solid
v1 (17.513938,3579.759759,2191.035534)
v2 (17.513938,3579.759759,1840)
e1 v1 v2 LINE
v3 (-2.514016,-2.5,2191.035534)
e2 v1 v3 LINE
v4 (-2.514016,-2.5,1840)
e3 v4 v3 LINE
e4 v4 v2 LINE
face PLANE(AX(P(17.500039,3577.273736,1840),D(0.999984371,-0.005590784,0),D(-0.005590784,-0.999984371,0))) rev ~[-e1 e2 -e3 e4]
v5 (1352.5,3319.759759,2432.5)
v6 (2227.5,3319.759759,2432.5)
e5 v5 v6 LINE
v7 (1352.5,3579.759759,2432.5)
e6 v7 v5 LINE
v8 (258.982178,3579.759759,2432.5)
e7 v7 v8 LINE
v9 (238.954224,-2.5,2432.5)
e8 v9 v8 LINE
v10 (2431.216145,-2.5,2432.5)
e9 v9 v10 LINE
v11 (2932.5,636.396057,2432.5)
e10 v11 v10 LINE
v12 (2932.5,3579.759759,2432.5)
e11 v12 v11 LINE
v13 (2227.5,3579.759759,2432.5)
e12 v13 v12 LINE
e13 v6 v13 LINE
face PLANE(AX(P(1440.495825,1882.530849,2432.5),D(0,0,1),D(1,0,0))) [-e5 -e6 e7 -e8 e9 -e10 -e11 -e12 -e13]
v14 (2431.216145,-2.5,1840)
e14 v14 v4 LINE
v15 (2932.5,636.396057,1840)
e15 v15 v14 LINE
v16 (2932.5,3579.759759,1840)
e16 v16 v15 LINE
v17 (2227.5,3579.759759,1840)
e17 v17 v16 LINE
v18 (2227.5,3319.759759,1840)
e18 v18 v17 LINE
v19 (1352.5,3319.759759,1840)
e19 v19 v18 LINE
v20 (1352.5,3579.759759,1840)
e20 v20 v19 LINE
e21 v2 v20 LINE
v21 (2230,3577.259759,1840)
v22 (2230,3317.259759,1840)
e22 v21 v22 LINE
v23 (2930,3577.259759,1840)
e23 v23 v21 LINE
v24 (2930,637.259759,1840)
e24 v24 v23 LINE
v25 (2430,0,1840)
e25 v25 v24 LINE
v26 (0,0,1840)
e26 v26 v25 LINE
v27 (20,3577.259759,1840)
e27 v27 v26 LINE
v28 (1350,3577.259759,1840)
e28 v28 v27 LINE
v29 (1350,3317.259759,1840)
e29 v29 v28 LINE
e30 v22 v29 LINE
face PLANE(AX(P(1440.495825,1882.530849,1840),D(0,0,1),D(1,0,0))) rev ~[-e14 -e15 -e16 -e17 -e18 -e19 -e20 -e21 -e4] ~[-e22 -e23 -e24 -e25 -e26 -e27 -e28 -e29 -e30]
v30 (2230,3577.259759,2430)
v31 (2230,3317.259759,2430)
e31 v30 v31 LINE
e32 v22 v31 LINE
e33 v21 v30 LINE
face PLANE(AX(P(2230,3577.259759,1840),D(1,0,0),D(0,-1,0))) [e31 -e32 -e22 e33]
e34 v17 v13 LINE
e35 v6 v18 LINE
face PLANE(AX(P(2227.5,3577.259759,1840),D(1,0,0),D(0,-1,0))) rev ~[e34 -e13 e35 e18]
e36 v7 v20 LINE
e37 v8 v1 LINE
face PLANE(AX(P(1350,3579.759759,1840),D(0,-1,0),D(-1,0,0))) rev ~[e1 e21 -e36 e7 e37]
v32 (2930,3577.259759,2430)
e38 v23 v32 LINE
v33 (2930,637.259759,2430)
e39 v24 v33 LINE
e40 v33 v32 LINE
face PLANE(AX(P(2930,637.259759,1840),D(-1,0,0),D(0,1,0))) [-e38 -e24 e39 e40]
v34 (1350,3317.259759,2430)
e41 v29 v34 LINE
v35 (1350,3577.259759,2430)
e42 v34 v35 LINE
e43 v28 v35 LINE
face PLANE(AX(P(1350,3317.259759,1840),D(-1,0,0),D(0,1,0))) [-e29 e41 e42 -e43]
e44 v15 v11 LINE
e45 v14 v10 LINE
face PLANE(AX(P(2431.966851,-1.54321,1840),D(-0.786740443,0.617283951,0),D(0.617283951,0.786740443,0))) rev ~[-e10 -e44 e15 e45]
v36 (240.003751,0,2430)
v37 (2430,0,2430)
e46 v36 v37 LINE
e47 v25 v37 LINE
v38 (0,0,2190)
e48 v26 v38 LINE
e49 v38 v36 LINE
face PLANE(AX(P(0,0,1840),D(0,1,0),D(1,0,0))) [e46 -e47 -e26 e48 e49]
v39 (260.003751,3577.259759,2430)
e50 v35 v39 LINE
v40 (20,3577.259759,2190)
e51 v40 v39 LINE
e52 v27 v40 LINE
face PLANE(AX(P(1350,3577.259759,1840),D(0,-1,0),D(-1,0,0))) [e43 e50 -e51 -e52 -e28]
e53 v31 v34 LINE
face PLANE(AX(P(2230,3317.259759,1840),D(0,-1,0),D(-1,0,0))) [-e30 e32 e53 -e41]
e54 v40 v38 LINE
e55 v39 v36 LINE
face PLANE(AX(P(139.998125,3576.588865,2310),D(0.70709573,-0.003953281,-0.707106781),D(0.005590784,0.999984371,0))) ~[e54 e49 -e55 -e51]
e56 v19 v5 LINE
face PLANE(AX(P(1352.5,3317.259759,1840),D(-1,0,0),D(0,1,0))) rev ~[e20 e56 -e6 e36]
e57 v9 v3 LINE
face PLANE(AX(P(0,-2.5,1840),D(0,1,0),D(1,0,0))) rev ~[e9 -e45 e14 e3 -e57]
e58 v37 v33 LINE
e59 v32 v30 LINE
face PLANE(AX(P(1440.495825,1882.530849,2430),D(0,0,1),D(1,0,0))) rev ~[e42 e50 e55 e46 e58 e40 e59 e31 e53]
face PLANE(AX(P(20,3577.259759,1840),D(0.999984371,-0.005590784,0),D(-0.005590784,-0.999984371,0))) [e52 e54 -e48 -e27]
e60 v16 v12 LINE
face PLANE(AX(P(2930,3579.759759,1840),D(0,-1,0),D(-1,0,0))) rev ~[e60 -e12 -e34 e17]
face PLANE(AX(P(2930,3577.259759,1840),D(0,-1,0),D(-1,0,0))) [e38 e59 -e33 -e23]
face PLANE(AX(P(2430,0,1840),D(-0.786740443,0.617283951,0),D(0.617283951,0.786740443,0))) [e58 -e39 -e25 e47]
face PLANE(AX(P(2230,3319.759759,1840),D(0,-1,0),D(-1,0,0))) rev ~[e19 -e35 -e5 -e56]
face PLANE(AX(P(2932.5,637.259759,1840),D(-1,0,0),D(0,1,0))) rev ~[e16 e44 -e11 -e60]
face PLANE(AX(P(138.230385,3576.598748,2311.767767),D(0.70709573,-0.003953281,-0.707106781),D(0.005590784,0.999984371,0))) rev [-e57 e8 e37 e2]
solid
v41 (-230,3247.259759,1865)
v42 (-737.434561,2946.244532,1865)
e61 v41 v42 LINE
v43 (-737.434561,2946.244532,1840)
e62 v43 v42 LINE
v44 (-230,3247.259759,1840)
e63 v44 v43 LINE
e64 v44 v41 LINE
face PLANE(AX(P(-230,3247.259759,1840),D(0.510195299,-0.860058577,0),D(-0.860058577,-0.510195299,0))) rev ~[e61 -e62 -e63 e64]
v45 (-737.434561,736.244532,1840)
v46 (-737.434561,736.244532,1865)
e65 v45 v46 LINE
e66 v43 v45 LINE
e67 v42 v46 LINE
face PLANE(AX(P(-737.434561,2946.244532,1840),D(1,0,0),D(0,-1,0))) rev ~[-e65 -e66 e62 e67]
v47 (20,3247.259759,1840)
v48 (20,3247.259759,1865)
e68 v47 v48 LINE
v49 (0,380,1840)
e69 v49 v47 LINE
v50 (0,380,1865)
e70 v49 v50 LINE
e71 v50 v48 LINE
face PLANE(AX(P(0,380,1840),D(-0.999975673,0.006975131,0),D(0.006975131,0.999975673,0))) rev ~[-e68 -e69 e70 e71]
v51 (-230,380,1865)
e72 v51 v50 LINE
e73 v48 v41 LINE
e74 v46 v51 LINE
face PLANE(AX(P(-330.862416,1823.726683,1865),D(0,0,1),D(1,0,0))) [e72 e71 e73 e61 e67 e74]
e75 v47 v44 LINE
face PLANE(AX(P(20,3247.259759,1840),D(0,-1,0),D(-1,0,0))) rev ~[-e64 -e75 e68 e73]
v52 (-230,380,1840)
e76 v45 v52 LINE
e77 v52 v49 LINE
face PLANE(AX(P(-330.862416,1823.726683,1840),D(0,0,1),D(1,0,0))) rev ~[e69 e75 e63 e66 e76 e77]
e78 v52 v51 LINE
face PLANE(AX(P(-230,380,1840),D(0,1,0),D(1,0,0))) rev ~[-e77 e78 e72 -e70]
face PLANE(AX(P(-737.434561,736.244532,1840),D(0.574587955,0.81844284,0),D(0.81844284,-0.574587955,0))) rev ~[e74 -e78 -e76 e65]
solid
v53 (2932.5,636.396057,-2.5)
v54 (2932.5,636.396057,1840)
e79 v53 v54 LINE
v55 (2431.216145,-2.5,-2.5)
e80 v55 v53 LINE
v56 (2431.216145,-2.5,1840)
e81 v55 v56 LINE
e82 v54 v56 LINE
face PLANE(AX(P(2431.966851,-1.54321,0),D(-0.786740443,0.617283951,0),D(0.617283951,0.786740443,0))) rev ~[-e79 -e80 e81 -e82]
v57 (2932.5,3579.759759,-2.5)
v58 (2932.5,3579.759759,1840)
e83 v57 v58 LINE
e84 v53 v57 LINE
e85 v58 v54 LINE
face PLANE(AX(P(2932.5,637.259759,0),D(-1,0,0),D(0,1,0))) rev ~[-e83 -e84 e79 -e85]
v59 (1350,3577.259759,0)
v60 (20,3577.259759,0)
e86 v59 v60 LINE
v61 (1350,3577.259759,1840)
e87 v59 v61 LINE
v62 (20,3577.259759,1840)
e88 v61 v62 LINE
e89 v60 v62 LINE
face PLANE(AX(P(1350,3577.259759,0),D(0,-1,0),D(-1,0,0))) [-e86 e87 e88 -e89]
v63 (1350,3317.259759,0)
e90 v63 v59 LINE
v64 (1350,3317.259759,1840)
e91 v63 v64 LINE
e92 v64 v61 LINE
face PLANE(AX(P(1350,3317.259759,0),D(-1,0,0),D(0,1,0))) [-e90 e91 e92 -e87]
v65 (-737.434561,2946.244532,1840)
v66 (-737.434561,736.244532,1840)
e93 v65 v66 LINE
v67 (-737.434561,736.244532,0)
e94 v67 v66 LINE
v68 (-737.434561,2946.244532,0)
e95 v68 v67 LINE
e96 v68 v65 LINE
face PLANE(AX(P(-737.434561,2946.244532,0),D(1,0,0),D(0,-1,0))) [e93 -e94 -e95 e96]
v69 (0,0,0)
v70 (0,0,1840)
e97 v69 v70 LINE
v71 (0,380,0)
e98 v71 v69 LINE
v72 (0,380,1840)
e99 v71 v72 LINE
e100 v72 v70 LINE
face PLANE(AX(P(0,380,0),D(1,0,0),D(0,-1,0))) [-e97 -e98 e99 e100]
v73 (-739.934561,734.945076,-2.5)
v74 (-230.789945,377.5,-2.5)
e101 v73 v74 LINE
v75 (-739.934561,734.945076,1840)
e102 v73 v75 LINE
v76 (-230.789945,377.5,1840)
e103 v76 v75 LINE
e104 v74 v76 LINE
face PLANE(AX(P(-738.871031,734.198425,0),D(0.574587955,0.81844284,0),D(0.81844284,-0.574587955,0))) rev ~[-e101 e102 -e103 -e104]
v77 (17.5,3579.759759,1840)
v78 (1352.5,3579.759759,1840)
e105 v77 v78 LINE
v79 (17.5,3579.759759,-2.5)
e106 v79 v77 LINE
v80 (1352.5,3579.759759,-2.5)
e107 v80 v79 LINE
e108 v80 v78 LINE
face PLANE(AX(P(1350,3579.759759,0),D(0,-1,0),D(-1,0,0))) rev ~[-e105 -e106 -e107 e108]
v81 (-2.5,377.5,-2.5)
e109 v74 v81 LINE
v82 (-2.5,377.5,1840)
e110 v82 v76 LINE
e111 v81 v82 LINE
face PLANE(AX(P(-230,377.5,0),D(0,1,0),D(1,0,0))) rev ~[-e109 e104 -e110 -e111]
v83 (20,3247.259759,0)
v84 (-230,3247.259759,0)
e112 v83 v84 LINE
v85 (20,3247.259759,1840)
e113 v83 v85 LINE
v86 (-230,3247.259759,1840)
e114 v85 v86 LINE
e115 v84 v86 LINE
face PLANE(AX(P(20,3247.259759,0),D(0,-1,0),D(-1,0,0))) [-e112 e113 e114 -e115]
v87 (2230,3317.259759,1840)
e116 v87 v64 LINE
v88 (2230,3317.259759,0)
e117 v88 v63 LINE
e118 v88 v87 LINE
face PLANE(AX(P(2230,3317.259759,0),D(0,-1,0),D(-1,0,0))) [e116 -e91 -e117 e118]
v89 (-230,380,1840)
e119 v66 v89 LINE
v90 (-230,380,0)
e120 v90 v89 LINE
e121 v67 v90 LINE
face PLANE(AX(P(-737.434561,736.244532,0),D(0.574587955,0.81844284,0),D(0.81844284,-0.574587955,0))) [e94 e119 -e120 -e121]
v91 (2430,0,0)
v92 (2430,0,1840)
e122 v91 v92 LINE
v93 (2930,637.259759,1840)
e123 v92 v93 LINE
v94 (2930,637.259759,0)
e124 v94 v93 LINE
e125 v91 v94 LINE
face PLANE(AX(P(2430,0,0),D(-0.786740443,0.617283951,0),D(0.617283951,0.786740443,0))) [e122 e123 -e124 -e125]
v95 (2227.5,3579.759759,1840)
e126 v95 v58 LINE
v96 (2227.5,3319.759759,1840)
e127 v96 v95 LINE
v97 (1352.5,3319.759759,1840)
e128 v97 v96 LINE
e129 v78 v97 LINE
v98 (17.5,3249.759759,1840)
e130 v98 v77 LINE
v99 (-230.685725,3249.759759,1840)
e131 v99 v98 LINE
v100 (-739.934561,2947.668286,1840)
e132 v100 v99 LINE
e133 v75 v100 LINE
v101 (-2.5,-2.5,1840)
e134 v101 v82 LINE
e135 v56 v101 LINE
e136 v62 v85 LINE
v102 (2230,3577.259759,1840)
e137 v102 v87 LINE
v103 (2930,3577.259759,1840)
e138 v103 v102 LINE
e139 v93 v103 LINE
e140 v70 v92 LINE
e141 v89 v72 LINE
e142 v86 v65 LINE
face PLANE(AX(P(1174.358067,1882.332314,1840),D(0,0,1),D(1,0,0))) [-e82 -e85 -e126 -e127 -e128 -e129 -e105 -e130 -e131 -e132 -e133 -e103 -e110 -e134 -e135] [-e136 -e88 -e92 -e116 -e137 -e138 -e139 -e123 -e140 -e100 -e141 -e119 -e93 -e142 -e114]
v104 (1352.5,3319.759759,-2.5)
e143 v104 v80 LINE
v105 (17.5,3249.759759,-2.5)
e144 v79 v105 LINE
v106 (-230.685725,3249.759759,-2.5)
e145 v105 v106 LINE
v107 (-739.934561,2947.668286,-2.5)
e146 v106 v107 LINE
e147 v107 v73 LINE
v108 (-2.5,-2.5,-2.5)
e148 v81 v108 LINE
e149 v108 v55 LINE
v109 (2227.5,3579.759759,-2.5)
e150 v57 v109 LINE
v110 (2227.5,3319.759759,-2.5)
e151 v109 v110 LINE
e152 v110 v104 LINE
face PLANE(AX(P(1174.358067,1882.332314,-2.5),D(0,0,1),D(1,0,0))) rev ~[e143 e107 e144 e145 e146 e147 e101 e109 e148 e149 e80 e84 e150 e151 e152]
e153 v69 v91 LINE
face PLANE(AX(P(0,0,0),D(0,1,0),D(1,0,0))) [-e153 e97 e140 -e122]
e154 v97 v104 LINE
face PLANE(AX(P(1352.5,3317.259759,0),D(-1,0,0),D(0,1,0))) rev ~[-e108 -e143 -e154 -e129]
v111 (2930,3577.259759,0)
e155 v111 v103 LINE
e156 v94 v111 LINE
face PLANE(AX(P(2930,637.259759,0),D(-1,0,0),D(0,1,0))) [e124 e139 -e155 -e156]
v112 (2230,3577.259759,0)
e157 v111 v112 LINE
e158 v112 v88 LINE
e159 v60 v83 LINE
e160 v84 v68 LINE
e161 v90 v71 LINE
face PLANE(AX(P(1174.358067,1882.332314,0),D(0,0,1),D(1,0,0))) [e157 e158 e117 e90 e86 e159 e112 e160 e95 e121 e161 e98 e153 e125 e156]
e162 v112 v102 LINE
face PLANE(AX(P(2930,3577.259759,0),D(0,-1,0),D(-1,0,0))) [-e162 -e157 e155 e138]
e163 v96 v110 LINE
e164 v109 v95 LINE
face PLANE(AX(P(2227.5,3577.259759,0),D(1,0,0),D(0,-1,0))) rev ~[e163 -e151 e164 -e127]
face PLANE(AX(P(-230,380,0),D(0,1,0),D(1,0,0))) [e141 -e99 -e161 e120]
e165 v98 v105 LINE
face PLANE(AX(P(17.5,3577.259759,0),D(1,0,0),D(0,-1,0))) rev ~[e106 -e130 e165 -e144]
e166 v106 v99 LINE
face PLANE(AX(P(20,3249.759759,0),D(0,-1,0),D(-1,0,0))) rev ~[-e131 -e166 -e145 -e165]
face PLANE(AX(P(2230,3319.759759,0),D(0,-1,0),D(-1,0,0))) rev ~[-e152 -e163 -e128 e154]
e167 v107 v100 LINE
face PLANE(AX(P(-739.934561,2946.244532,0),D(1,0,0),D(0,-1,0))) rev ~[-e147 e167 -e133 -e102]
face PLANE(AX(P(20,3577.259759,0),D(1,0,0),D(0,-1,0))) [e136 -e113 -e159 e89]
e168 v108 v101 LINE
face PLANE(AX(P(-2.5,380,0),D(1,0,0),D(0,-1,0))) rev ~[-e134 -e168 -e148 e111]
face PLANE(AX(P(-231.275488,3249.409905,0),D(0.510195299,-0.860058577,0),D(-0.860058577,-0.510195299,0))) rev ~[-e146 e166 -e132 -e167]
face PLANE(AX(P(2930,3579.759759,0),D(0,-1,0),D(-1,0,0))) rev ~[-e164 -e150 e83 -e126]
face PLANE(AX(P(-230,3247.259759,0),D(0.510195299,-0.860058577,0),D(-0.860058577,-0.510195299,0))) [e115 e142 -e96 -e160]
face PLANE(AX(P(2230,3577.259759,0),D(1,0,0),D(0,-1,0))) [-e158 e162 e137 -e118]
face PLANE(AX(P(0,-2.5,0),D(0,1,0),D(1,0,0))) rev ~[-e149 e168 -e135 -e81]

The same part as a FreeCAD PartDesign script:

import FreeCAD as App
import Part
import Sketcher

V = App.Vector
Q = App.Units.Quantity


def edges_at(feature, points):
    """Names of the edges that pass closest to the given points."""
    edges = feature.Shape.Edges
    near = lambda p: min(range(len(edges)), key=lambda i: edges[i].distToShape(Part.Vertex(*p))[0])
    return sorted({f"Edge{near(p) + 1}" for p in points})


def faces_at(feature, points):
    """Names of the faces that lie closest to the given points."""
    faces = feature.Shape.Faces
    near = lambda p: min(range(len(faces)), key=lambda i: faces[i].distToShape(Part.Vertex(*p))[0])
    return sorted({f"Face{near(p) + 1}" for p in points})


def add_polygon(sketch, points):
    """Adds a closed chain of lines whose ends are joined by coincident constraints."""
    first, n = sketch.GeometryCount, len(points)
    for a, b in zip(points, points[1:] + points[:1]):
        sketch.addGeometry(Part.LineSegment(App.Vector(*a, 0), App.Vector(*b, 0)), False)
    for i in range(n):
        sketch.addConstraint(Sketcher.Constraint("Coincident", first + i, 2, first + (i + 1) % n, 1))

doc = App.newDocument("Part")
body = doc.addObject("PartDesign::Body", "Body")

# Sketch on XY plane
sketch1 = body.newObject("Sketcher::SketchObject", "Sketch")
sketch1.AttachmentSupport = (doc.getObject("XY_Plane"), [""])
sketch1.MapMode = "FlatFace"
add_polygon(sketch1, [(0, 380), (0, 0), (2430, 0), (2930, 637), (2930, 3577), (2230, 3577), (2230, 3317), (1350, 3317), (1350, 3577), (20, 3577), (20, 3247), (-230, 3247), (-737, 2946), (-737, 736), (-230, 380)])  # lines 0-14
sketch1.addConstraint([
    Sketcher.Constraint("Vertical", 0),
    Sketcher.Constraint("Horizontal", 1),
    Sketcher.Constraint("Vertical", 3),
    Sketcher.Constraint("Horizontal", 4),
    Sketcher.Constraint("Vertical", 5),
    Sketcher.Constraint("Horizontal", 6),
    Sketcher.Constraint("Vertical", 7),
    Sketcher.Constraint("Horizontal", 8),
    Sketcher.Constraint("Vertical", 9),
    Sketcher.Constraint("Horizontal", 10),
    Sketcher.Constraint("Vertical", 12),
    Sketcher.Constraint("Horizontal", 14),
    Sketcher.Constraint("Coincident", 0, 2, -1, 1),
    Sketcher.Constraint("Horizontal", 4, 2, 7, 2),
    Sketcher.Constraint("Vertical", 10, 2, 13, 2),
    Sketcher.Constraint("DistanceX", 1, 1, 1, 2, Q("2430 mm")),
    Sketcher.Constraint("DistanceX", 4, 2, 4, 1, Q("700 mm")),
    Sketcher.Constraint("DistanceX", 6, 2, 6, 1, Q("880 mm")),
    Sketcher.Constraint("DistanceX", 8, 2, 8, 1, Q("1330 mm")),
    Sketcher.Constraint("DistanceX", 10, 2, 10, 1, Q("250 mm")),
    Sketcher.Constraint("DistanceX", 14, 1, 14, 2, Q("230 mm")),
    Sketcher.Constraint("DistanceY", 0, 2, 0, 1, Q("380 mm")),
    Sketcher.Constraint("DistanceY", 3, 1, 3, 2, Q("2940 mm")),
    Sketcher.Constraint("DistanceY", 5, 2, 5, 1, Q("260 mm")),
    Sketcher.Constraint("DistanceY", 9, 2, 9, 1, Q("330 mm")),
    Sketcher.Constraint("DistanceY", 12, 2, 12, 1, Q("2210 mm")),
    Sketcher.Constraint("Distance", 2, Q("810 mm")),
    Sketcher.Constraint("Distance", 11, Q("590 mm")),
    Sketcher.Constraint("Distance", 13, Q("620 mm")),
])
pad1 = body.newObject("PartDesign::Pad", "Pad")
pad1.Profile = sketch1
pad1.Length = 1840
doc.recompute()

thickness = body.newObject("PartDesign::Thickness", "Thickness")
thickness.Base = (pad1, faces_at(pad1, [(1096.283, 1788.63, 1840)]))
thickness.Value = 2.5
thickness.Reversed = False
thickness.Join = "Intersection"
body2 = doc.addObject("PartDesign::Body", "Body001")

# Sketch on XY plane
sketch2 = body2.newObject("Sketcher::SketchObject", "Sketch001")
sketch2.AttachmentSupport = (doc.getObject("XY_Plane001"), [""])
sketch2.MapMode = "FlatFace"
sketch2.AttachmentOffset = App.Placement(V(0, 0, 1840), App.Rotation())
add_polygon(sketch2, [(0, 380), (20, 3247), (-230, 3247), (-737, 2946), (-737, 736), (-230, 380)])  # lines 0-5
sketch2.addConstraint([
    Sketcher.Constraint("Horizontal", 1),
    Sketcher.Constraint("Vertical", 3),
    Sketcher.Constraint("Horizontal", 5),
    Sketcher.Constraint("PointOnObject", 5, 2, -2),
    Sketcher.Constraint("Vertical", 1, 2, 4, 2),
    Sketcher.Constraint("DistanceX", 1, 2, 1, 1, Q("250 mm")),
    Sketcher.Constraint("DistanceX", 5, 1, 5, 2, Q("230 mm")),
    Sketcher.Constraint("DistanceY", 3, 2, 3, 1, Q("2210 mm")),
    Sketcher.Constraint("Distance", 2, Q("590 mm")),
    Sketcher.Constraint("Distance", 4, Q("620 mm")),
    Sketcher.Constraint("DistanceY", -1, 1, 4, 2, Q("380 mm")),
    Sketcher.Constraint("Distance", 0, Q("2867.329511 mm")),
])
pad2 = body2.newObject("PartDesign::Pad", "Pad001")
pad2.Profile = sketch2
pad2.Length = 25
body3 = doc.addObject("PartDesign::Body", "Body002")

# Sketch on XY plane
sketch3 = body3.newObject("Sketcher::SketchObject", "Sketch002")
sketch3.AttachmentSupport = (doc.getObject("XY_Plane002"), [""])
sketch3.MapMode = "FlatFace"
sketch3.AttachmentOffset = App.Placement(V(0, 0, 1840), App.Rotation())
add_polygon(sketch3, [(20, 3577), (0, 0), (2430, 0), (2930, 637), (2930, 3577), (2230, 3577), (2230, 3317), (1350, 3317), (1350, 3577)])  # lines 0-8
sketch3.addConstraint([
    Sketcher.Constraint("Horizontal", 1),
    Sketcher.Constraint("Vertical", 3),
    Sketcher.Constraint("Horizontal", 4),
    Sketcher.Constraint("Vertical", 5),
    Sketcher.Constraint("Horizontal", 6),
    Sketcher.Constraint("Vertical", 7),
    Sketcher.Constraint("Horizontal", 8),
    Sketcher.Constraint("Coincident", 0, 2, -1, 1),
    Sketcher.Constraint("Horizontal", 4, 2, 7, 2),
    Sketcher.Constraint("DistanceX", 1, 1, 1, 2, Q("2430 mm")),
    Sketcher.Constraint("DistanceX", 4, 2, 4, 1, Q("700 mm")),
    Sketcher.Constraint("DistanceX", 6, 2, 6, 1, Q("880 mm")),
    Sketcher.Constraint("DistanceX", 8, 2, 8, 1, Q("1330 mm")),
    Sketcher.Constraint("DistanceY", 3, 1, 3, 2, Q("2940 mm")),
    Sketcher.Constraint("DistanceY", 5, 2, 5, 1, Q("260 mm")),
    Sketcher.Constraint("Distance", 2, Q("810 mm")),
    Sketcher.Constraint("DistanceX", -1, 1, 2, 2, Q("2930 mm")),
])
pad3 = body3.newObject("PartDesign::Pad", "Pad002")
pad3.Profile = sketch3
pad3.Length = 590
doc.recompute()

chamfer = body3.newObject("PartDesign::Chamfer", "Chamfer")
chamfer.Base = (pad3, edges_at(pad3, [(10, 1788.63, 2430)]))
chamfer.ChamferType = "Two distances"
chamfer.Size = 240
chamfer.Size2 = 240
doc.recompute()

thickness2 = body3.newObject("PartDesign::Thickness", "Thickness001")
thickness2.Base = (chamfer, faces_at(chamfer, [(1465, 1788.63, 1840)]))
thickness2.Value = 2.5
thickness2.Reversed = False
thickness2.Join = "Intersection"

doc.recompute()
